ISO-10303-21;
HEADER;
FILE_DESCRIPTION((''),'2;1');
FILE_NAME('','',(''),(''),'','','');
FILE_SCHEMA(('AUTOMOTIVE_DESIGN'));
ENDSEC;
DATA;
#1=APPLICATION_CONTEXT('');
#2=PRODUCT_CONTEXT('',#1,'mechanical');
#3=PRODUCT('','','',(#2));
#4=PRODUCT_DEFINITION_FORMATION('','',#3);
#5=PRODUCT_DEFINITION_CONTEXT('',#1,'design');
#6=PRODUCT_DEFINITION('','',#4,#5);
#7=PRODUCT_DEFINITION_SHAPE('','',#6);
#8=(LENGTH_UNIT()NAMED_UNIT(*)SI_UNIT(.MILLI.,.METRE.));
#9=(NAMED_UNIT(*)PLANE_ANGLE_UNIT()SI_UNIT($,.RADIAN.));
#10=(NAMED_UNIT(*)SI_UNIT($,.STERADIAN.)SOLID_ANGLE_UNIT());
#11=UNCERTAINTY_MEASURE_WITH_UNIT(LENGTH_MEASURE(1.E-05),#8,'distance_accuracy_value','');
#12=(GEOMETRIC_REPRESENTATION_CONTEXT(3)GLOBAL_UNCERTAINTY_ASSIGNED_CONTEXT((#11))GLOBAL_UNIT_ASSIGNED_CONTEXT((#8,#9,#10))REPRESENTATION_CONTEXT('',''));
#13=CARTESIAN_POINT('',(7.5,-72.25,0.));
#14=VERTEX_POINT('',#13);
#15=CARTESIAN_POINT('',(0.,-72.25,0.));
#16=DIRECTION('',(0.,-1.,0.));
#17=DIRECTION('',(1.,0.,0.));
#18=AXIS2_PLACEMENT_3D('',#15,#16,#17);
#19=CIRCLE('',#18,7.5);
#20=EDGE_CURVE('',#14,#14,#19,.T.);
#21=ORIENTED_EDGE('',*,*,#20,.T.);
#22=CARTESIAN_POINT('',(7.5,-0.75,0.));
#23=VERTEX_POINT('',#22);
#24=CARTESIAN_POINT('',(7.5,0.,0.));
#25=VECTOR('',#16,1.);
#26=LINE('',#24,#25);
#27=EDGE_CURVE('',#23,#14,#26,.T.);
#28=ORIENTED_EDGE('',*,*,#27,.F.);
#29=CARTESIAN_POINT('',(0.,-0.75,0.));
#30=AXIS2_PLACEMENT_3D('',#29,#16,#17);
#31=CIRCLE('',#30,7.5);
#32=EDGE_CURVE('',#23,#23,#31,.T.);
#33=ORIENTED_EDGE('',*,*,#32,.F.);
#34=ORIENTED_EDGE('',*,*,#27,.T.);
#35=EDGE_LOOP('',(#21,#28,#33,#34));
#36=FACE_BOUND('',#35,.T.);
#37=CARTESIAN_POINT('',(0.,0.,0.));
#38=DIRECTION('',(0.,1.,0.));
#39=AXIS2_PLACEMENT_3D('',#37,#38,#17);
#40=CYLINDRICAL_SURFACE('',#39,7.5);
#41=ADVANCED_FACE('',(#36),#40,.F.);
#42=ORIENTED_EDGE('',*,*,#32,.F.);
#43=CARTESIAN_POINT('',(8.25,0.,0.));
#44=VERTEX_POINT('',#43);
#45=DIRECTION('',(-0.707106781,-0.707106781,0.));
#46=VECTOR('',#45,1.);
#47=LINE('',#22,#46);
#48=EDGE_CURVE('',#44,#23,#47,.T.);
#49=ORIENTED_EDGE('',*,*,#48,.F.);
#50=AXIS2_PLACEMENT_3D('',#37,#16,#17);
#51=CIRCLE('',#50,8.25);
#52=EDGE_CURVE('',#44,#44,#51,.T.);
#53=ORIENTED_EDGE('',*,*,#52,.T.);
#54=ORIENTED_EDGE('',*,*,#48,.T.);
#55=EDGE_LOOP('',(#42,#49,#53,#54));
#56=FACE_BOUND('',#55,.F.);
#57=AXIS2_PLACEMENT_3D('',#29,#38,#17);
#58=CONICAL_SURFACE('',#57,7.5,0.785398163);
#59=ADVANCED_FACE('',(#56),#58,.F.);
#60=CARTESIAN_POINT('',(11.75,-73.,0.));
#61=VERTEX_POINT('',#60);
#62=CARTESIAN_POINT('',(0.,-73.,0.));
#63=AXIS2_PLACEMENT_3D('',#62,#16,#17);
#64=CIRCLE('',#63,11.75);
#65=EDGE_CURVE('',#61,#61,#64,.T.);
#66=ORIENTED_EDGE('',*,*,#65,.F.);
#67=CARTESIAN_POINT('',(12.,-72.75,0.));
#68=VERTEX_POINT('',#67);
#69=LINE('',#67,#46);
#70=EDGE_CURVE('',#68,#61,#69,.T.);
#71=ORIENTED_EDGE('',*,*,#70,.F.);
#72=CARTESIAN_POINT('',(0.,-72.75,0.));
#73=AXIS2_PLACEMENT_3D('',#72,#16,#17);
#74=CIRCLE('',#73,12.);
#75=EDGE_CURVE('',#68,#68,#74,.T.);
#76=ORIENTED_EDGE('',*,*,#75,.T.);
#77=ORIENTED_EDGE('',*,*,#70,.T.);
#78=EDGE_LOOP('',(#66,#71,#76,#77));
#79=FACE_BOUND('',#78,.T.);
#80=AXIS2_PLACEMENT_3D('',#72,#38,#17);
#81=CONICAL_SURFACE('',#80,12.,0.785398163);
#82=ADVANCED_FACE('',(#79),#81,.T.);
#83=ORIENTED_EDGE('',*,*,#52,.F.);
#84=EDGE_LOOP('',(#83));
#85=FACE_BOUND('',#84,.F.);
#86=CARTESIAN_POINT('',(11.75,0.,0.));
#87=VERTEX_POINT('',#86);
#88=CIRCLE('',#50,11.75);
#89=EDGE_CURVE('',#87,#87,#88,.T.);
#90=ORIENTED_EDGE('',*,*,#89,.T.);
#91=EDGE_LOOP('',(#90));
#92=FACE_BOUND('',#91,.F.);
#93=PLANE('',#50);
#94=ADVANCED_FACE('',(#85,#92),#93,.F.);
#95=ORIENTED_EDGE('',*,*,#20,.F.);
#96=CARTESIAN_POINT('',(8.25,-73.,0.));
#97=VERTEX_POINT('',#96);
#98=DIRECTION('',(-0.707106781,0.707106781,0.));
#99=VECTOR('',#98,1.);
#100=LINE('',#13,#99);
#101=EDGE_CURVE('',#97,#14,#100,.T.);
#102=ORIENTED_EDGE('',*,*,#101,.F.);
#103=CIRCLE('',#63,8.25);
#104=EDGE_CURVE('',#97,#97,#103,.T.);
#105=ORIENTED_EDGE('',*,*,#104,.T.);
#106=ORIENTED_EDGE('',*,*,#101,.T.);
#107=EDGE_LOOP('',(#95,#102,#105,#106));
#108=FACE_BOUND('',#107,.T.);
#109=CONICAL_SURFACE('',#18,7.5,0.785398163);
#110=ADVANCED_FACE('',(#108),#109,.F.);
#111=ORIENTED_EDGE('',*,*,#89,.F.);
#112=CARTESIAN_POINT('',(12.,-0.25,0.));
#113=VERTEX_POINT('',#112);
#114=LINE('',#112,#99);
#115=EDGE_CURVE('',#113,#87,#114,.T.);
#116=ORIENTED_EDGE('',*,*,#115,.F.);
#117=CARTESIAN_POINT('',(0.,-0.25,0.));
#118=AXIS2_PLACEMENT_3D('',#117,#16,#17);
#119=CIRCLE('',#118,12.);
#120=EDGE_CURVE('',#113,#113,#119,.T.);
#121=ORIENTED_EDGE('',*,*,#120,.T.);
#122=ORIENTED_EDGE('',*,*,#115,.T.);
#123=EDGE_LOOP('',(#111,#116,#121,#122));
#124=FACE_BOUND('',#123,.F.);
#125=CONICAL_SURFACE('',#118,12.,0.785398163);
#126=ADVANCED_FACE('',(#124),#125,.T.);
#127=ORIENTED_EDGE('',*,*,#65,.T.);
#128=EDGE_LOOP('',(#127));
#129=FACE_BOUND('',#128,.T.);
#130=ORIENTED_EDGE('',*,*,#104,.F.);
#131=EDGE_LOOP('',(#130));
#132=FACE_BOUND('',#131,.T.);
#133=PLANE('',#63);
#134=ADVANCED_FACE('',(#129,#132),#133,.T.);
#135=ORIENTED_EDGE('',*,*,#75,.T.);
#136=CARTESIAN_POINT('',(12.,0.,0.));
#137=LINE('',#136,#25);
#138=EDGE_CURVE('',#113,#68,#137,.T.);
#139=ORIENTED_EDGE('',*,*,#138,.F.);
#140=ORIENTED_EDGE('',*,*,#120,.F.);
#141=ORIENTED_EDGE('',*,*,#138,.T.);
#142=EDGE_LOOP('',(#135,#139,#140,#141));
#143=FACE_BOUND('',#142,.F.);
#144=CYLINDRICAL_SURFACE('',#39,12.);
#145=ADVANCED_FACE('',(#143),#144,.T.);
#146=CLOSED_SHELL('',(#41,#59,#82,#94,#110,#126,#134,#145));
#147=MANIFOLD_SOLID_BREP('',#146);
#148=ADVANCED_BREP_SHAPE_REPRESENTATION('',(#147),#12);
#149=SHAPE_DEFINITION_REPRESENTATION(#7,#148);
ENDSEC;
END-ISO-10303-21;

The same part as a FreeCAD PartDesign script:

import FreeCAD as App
import Part
import Sketcher


def edges_at(feature, points):
    """Names of the edges that pass closest to the given points."""
    edges = feature.Shape.Edges
    near = lambda p: min(range(len(edges)), key=lambda i: edges[i].distToShape(Part.Vertex(*p))[0])
    return sorted({f"Edge{near(p) + 1}" for p in points})

doc = App.newDocument("Part")
params = doc.addObject("Spreadsheet::Sheet", "Params")
for row, (alias, value) in enumerate([
    ("sketch1_diameter", "24 mm"),
    ("sketch1_diameter2", "15 mm"),
    ("pad1_length", "73 mm"),
    ("chamfer_size", "0.25 mm"),
    ("chamfer2_size", "0.75 mm"),
], start=1):
    params.set(f"A{row}", alias)
    params.set(f"B{row}", "=" + value)
    params.setAlias(f"B{row}", alias)

body = doc.addObject("PartDesign::Body", "Body")

sketch1 = doc.addObject("Sketcher::SketchObject", "Sketch")
body.addObject(sketch1)
sketch1.AttachmentSupport = (doc.XZ_Plane, [""])
sketch1.MapMode = "FlatFace"
sketch1.addGeometry([
    Part.Circle(App.Vector(0, 0, 0), App.Vector(0, 0, 1), 12),
    Part.Circle(App.Vector(0, 0, 0), App.Vector(0, 0, 1), 8),
], False)
sketch1.addConstraint([
    Sketcher.Constraint("Coincident", 0, 3, -1, 1),
    Sketcher.Constraint("Coincident", 1, 3, -1, 1),
    Sketcher.Constraint("Diameter", 0, 24.0),
    Sketcher.Constraint("Diameter", 1, 15.0),
])
sketch1.setExpression("Constraints[2]", "Params.sketch1_diameter")
sketch1.setExpression("Constraints[3]", "Params.sketch1_diameter2")
pad1 = doc.addObject("PartDesign::Pad", "Pad")
body.addObject(pad1)
pad1.Profile = sketch1
pad1.setExpression("Length", "Params.pad1_length")
doc.recompute()

chamfer = doc.addObject("PartDesign::Chamfer", "Chamfer")
body.addObject(chamfer)
chamfer.Base = (pad1, edges_at(pad1, [(-12, -73, 0), (-12, 0, 0)]))
chamfer.setExpression("Size", "Params.chamfer_size")
doc.recompute()

chamfer2 = doc.addObject("PartDesign::Chamfer", "Chamfer001")
body.addObject(chamfer2)
chamfer2.Base = (chamfer, edges_at(chamfer, [(-7.5, -73, 0), (-7.5, 0, 0)]))
chamfer2.setExpression("Size", "Params.chamfer2_size")

doc.recompute()
